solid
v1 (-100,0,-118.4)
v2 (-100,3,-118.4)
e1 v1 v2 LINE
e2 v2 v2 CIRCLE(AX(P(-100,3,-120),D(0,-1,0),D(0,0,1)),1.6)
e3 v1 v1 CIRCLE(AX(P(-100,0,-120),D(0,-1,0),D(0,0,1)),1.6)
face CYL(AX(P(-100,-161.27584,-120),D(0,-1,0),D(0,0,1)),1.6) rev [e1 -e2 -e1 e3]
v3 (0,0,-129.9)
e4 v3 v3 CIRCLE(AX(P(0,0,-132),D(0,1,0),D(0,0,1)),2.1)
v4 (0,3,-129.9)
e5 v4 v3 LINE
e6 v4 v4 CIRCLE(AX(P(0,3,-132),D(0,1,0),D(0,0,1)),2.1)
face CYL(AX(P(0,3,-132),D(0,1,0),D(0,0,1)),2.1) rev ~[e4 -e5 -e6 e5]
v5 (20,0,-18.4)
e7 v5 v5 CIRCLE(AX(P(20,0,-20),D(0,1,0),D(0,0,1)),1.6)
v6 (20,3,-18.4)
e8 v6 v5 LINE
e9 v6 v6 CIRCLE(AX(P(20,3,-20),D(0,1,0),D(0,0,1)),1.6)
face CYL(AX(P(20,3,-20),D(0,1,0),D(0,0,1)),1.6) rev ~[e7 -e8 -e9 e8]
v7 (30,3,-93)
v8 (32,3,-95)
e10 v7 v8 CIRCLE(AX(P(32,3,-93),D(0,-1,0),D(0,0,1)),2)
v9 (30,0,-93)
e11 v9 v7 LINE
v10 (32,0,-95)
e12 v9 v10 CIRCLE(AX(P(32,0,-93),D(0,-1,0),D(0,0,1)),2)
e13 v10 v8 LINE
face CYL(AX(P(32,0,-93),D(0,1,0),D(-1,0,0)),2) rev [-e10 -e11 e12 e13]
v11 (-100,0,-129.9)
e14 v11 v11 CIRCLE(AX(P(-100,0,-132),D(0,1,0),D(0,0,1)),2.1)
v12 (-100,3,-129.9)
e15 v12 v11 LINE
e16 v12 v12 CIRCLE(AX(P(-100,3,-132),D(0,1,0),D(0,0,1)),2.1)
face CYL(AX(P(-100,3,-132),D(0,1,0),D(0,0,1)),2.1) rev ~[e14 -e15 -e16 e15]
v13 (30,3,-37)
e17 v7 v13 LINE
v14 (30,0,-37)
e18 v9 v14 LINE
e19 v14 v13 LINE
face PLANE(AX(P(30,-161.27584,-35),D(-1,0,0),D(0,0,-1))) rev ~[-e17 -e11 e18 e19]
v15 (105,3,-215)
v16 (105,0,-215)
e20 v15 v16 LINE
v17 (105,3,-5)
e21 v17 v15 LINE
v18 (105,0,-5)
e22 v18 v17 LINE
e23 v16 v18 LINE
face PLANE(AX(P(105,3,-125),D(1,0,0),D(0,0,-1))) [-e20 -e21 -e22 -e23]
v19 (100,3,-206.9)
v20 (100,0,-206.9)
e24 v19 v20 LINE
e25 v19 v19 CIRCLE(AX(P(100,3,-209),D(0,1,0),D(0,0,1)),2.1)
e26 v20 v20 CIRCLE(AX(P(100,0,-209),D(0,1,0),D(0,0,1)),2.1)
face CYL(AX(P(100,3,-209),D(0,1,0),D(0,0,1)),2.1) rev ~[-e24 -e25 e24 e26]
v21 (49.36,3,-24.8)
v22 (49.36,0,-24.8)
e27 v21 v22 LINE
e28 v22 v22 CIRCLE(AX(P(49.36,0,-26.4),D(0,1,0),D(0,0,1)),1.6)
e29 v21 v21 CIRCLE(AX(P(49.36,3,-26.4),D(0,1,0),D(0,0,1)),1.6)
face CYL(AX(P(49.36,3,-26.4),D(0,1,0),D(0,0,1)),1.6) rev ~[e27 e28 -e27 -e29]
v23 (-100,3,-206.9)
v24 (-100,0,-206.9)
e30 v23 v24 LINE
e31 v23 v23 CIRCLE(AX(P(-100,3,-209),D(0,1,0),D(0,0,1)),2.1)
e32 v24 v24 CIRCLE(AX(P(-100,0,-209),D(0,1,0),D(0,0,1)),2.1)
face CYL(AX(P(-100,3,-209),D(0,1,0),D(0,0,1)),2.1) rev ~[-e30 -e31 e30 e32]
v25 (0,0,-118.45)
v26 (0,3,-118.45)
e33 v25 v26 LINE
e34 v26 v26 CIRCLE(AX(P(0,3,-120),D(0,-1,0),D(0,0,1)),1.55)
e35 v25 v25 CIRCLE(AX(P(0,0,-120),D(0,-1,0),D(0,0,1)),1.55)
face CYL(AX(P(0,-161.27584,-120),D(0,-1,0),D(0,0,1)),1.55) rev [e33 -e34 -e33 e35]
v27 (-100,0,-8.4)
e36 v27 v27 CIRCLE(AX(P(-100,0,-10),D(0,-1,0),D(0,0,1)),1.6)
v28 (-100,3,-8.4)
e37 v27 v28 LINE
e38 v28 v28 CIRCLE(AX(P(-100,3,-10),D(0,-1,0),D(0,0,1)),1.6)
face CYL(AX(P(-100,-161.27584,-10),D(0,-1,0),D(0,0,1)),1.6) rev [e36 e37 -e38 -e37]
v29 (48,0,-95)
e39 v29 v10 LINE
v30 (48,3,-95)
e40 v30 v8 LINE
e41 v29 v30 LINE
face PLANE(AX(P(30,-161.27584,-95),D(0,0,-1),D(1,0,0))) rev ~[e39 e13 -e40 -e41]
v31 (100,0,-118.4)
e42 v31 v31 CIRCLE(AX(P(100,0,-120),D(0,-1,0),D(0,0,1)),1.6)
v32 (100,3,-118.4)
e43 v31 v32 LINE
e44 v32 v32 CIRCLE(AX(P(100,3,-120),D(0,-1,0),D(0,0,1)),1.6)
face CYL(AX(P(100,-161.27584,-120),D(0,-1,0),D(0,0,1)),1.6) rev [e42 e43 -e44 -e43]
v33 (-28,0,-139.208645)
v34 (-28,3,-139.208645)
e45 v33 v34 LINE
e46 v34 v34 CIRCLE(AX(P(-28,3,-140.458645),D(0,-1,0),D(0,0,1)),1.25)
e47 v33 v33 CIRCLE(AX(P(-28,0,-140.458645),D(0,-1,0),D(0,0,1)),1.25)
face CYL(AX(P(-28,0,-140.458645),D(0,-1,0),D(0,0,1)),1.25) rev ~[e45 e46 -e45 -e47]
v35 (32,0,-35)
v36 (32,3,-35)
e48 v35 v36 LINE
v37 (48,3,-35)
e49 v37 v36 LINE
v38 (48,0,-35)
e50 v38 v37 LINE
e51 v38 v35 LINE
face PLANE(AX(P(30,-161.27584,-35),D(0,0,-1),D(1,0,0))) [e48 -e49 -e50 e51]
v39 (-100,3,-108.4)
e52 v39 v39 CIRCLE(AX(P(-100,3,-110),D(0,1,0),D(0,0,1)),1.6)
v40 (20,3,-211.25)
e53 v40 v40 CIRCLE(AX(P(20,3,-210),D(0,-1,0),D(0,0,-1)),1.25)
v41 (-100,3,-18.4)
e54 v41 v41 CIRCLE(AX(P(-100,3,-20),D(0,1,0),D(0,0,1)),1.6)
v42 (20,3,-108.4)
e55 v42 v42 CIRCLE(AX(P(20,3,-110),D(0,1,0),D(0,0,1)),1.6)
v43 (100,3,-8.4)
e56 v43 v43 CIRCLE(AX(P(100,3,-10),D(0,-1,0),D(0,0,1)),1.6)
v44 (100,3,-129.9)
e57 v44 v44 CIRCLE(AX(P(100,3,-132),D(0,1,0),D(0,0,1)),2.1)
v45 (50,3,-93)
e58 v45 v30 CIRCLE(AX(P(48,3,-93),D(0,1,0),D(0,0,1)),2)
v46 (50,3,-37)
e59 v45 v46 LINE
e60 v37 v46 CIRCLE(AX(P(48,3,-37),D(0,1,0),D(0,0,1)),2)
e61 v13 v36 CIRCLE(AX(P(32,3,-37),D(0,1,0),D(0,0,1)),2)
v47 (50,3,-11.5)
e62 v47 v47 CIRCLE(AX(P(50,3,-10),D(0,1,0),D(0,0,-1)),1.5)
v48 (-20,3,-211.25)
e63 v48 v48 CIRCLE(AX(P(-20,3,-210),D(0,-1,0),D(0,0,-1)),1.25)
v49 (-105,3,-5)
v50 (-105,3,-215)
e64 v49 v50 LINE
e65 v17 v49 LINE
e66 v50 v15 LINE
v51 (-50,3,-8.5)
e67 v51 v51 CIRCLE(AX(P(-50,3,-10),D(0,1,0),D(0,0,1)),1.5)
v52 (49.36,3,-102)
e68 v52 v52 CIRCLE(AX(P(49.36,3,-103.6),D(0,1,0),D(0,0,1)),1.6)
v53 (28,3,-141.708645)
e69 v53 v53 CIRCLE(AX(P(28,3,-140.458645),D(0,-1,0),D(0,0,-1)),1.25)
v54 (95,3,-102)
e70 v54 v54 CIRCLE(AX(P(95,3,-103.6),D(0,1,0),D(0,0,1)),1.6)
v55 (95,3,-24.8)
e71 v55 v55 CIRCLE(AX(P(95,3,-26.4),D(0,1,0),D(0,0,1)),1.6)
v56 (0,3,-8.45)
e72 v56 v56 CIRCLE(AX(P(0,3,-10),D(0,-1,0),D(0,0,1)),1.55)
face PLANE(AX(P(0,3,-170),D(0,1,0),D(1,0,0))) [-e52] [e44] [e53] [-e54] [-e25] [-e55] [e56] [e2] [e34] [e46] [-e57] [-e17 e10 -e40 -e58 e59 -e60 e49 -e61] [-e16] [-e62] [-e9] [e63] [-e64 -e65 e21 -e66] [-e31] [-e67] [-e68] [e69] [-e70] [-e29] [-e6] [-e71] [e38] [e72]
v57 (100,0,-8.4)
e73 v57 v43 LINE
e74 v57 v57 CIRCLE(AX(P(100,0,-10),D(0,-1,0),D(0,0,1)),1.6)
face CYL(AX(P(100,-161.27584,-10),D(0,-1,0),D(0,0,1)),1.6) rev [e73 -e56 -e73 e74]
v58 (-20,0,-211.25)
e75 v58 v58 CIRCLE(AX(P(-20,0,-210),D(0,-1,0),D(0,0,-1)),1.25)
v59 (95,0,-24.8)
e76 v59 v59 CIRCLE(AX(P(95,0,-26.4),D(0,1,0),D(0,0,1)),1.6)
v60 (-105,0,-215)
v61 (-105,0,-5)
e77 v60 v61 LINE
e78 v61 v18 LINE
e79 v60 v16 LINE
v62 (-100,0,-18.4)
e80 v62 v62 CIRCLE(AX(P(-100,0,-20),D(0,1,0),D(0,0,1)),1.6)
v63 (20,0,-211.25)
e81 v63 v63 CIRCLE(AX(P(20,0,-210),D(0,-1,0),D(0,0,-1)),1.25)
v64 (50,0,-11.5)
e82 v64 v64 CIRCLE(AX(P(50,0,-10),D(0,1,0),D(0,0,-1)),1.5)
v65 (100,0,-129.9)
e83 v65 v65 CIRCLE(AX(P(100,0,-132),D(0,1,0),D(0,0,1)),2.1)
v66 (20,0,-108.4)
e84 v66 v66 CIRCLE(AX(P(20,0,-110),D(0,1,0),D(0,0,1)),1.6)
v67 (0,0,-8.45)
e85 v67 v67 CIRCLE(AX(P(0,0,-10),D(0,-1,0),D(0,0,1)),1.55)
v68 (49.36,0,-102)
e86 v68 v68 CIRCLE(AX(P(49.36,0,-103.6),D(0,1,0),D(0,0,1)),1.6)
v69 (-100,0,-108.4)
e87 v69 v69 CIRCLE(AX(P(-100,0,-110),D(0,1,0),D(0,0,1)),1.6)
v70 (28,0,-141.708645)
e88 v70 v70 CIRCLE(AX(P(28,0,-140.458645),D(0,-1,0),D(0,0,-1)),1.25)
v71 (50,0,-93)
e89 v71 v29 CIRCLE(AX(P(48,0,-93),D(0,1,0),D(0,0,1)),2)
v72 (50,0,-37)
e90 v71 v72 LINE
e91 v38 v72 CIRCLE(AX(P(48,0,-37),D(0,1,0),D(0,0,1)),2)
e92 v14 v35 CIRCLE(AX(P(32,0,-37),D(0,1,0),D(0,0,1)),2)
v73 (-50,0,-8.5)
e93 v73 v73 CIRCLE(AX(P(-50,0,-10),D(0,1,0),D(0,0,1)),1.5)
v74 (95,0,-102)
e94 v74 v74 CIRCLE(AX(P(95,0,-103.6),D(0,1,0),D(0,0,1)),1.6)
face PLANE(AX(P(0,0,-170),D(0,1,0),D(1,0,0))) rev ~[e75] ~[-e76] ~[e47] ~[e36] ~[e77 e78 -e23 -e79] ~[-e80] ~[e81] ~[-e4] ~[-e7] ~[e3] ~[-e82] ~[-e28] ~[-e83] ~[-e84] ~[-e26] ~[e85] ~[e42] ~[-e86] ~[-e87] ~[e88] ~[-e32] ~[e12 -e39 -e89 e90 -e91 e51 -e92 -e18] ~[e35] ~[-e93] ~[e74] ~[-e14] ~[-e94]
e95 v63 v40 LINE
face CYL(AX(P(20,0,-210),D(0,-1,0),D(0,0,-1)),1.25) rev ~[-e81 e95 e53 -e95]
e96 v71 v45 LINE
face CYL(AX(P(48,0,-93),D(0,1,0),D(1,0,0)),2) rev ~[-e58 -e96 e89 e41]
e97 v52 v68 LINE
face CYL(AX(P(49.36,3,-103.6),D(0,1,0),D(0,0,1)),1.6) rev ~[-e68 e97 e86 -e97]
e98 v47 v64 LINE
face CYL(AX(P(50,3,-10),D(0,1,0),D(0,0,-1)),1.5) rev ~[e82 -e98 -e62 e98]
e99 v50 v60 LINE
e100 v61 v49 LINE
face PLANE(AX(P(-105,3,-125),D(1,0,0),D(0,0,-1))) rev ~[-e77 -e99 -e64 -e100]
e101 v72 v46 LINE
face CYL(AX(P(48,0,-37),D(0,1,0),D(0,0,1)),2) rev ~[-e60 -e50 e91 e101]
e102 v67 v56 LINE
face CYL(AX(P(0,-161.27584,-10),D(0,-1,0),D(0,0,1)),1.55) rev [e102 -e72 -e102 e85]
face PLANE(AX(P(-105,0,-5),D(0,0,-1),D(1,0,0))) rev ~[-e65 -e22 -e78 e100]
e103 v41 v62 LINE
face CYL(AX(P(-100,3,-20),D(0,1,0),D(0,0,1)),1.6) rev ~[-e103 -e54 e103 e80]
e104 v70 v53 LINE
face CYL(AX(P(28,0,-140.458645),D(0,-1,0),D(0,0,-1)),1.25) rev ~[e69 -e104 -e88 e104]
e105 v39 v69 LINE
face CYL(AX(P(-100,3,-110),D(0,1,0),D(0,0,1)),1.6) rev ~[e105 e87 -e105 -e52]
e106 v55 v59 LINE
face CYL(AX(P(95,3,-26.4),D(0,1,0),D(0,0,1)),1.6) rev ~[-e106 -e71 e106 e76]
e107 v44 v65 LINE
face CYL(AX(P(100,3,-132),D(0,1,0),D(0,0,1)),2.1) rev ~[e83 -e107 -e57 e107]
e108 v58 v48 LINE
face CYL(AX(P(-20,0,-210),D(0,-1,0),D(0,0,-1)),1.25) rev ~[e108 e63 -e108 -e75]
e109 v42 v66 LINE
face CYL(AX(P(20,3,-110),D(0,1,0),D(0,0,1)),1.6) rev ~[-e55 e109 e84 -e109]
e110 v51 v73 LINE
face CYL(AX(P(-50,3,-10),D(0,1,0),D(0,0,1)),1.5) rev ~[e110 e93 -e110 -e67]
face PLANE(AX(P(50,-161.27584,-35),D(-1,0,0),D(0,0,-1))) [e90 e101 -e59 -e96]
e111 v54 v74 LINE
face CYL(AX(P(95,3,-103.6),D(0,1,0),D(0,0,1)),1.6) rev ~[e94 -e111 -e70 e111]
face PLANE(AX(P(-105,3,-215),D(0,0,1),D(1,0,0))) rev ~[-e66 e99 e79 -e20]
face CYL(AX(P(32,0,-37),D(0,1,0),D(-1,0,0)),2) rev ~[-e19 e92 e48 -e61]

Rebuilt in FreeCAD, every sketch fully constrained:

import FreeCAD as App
import Part
import Sketcher


def edges_at(feature, points):
    """Names of the edges that pass closest to the given points."""
    edges = feature.Shape.Edges
    near = lambda p: min(range(len(edges)), key=lambda i: edges[i].distToShape(Part.Vertex(*p))[0])
    return sorted({f"Edge{near(p) + 1}" for p in points})


def add_polygon(sketch, points):
    """Adds a closed chain of lines whose ends are joined by coincident constraints."""
    first, n = sketch.GeometryCount, len(points)
    for a, b in zip(points, points[1:] + points[:1]):
        sketch.addGeometry(Part.LineSegment(App.Vector(*a, 0), App.Vector(*b, 0)), False)
    for i in range(n):
        sketch.addConstraint(Sketcher.Constraint("Coincident", first + i, 2, first + (i + 1) % n, 1))

doc = App.newDocument("Part")
body = doc.addObject("PartDesign::Body", "Body")

# Sketch on XZ plane
sketch1 = doc.addObject("Sketcher::SketchObject", "Sketch")
body.addObject(sketch1)
sketch1.AttachmentSupport = (doc.XZ_Plane, [""])
sketch1.MapMode = "FlatFace"
add_polygon(sketch1, [(-105, -125), (-105, 125), (105, 125), (105, -125)])  # lines 0-3
sketch1.addConstraint([
    Sketcher.Constraint("Vertical", 0),
    Sketcher.Constraint("Horizontal", 1),
    Sketcher.Constraint("Vertical", 2),
    Sketcher.Constraint("Horizontal", 3),
    Sketcher.Constraint("Symmetric", 0, 2, 2, 2, -1, 1),
    Sketcher.Constraint("DistanceX", 1, 1, 1, 2, 210.0),
    Sketcher.Constraint("DistanceY", 0, 1, 0, 2, 250.0),
])
pad1 = doc.addObject("PartDesign::Pad", "Pad")
body.addObject(pad1)
pad1.Profile = sketch1
pad1.Length = 3
pad1.Reversed = True

# Sketch on XZ plane
sketch2 = doc.addObject("Sketcher::SketchObject", "Sketch001")
body.addObject(sketch2)
sketch2.AttachmentSupport = (doc.XZ_Plane, [""])
sketch2.MapMode = "FlatFace"
add_polygon(sketch2, [(-105, -5), (-105, 125), (105, 125), (105, -5)])  # lines 0-3
sketch2.addConstraint([
    Sketcher.Constraint("Vertical", 0),
    Sketcher.Constraint("Horizontal", 1),
    Sketcher.Constraint("Vertical", 2),
    Sketcher.Constraint("Horizontal", 3),
    Sketcher.Constraint("DistanceX", 1, 1, 1, 2, 210.0),
    Sketcher.Constraint("DistanceY", 0, 1, 0, 2, 130.0),
    Sketcher.Constraint("DistanceX", 0, 2, -1, 1, 105.0),
    Sketcher.Constraint("DistanceY", -1, 1, 0, 2, 125.0),
])
pocket1 = doc.addObject("PartDesign::Pocket", "Pocket")
body.addObject(pocket1)
pocket1.Profile = sketch2
pocket1.Type = "ThroughAll"

# Sketch on XZ plane
sketch3 = doc.addObject("Sketcher::SketchObject", "Sketch002")
body.addObject(sketch3)
sketch3.AttachmentSupport = (doc.XZ_Plane, [""])
sketch3.MapMode = "FlatFace"
sketch3.AttachmentOffset = App.Placement(App.Vector(0, 0, -3), App.Rotation())
add_polygon(sketch3, [(30, -95), (30, -35), (50, -35), (50, -95)])  # lines 0-3
sketch3.addConstraint([
    Sketcher.Constraint("Vertical", 0),
    Sketcher.Constraint("Horizontal", 1),
    Sketcher.Constraint("Vertical", 2),
    Sketcher.Constraint("Horizontal", 3),
    Sketcher.Constraint("DistanceX", 1, 1, 1, 2, 20.0),
    Sketcher.Constraint("DistanceY", 0, 1, 0, 2, 60.0),
    Sketcher.Constraint("DistanceX", -1, 1, 0, 2, 30.0),
    Sketcher.Constraint("DistanceY", 0, 2, -1, 1, 35.0),
])
pocket2 = doc.addObject("PartDesign::Pocket", "Pocket001")
body.addObject(pocket2)
pocket2.Profile = sketch3
pocket2.Type = "ThroughAll"
pocket2.Midplane = True
doc.recompute()

fillet = doc.addObject("PartDesign::Fillet", "Fillet")
body.addObject(fillet)
fillet.Base = (pocket2, edges_at(pocket2, [
    (50, 1.5, -95),
    (50, 1.5, -35),
    (30, 1.5, -35),
    (30, 1.5, -95),
]))
fillet.Radius = 2

# Sketch on XZ plane
sketch4 = doc.addObject("Sketcher::SketchObject", "Sketch003")
body.addObject(sketch4)
sketch4.AttachmentSupport = (doc.XZ_Plane, [""])
sketch4.MapMode = "FlatFace"
sketch4.AttachmentOffset = App.Placement(App.Vector(0, 0, -3), App.Rotation())
sketch4.addGeometry([
    Part.Circle(App.Vector(100, -120, 0), App.Vector(0, 0, 1), 1.6),  # 0
    Part.Circle(App.Vector(0, -120, 0), App.Vector(0, 0, 1), 1.6),  # 1
    Part.Circle(App.Vector(-100, -120, 0), App.Vector(0, 0, 1), 1.6),  # 2
    Part.Circle(App.Vector(-100, -10, 0), App.Vector(0, 0, 1), 1.6),  # 3
    Part.Circle(App.Vector(0, -10, 0), App.Vector(0, 0, 1), 1.6),  # 4
    Part.Circle(App.Vector(100, -10, 0), App.Vector(0, 0, 1), 1.6),  # 5
], False)
sketch4.addConstraint([
    Sketcher.Constraint("Equal", 0, 2),
    Sketcher.Constraint("Equal", 2, 3),
    Sketcher.Constraint("Equal", 1, 4),
    Sketcher.Constraint("Equal", 3, 5),
    Sketcher.Constraint("Symmetric", 0, 3, 2, 3, -2),
    Sketcher.Constraint("Symmetric", 3, 3, 5, 3, -2),
    Sketcher.Constraint("PointOnObject", 1, 3, -2),
    Sketcher.Constraint("PointOnObject", 4, 3, -2),
    Sketcher.Constraint("Horizontal", 0, 3, 1, 3),
    Sketcher.Constraint("Horizontal", 3, 3, 4, 3),
    Sketcher.Constraint("Vertical", 2, 3, 3, 3),
    Sketcher.Constraint("Diameter", 0, 3.2),
    Sketcher.Constraint("Diameter", 1, 3.1),
    Sketcher.Constraint("DistanceX", -1, 1, 0, 3, 100.0),
    Sketcher.Constraint("DistanceY", 0, 3, -1, 1, 120.0),
    Sketcher.Constraint("DistanceY", 3, 3, -1, 1, 10.0),
])
pocket3 = doc.addObject("PartDesign::Pocket", "Pocket002")
body.addObject(pocket3)
pocket3.Profile = sketch4
pocket3.Type = "ThroughAll"
pocket3.Midplane = True

# Sketch on XZ plane
sketch5 = doc.addObject("Sketcher::SketchObject", "Sketch004")
body.addObject(sketch5)
sketch5.AttachmentSupport = (doc.XZ_Plane, [""])
sketch5.MapMode = "FlatFace"
sketch5.AttachmentOffset = App.Placement(App.Vector(0, 0, -3), App.Rotation())
sketch5.addGeometry([
    Part.Circle(App.Vector(20, -20, 0), App.Vector(0, 0, 1), 1.6),  # 0
    Part.Circle(App.Vector(-100, -20, 0), App.Vector(0, 0, 1), 1.6),  # 1
    Part.Circle(App.Vector(-100, -110, 0), App.Vector(0, 0, 1), 1.6),  # 2
    Part.Circle(App.Vector(20, -110, 0), App.Vector(0, 0, 1), 1.6),  # 3
    Part.Circle(App.Vector(-50, -10, 0), App.Vector(0, 0, 1), 1.5),  # 4
    Part.Circle(App.Vector(50, -10, 0), App.Vector(0, 0, 1), 1.5),  # 5
    Part.Circle(App.Vector(95, -26.4, 0), App.Vector(0, 0, 1), 1.6),  # 6
    Part.Circle(App.Vector(49.4, -26.4, 0), App.Vector(0, 0, 1), 1.6),  # 7
    Part.Circle(App.Vector(49.4, -103.6, 0), App.Vector(0, 0, 1), 1.6),  # 8
    Part.Circle(App.Vector(95, -103.6, 0), App.Vector(0, 0, 1), 1.6),  # 9
], False)
sketch5.addConstraint([
    Sketcher.Constraint("Equal", 0, 1),
    Sketcher.Constraint("Equal", 1, 2),
    Sketcher.Constraint("Equal", 2, 3),
    Sketcher.Constraint("Equal", 4, 5),
    Sketcher.Constraint("Equal", 3, 6),
    Sketcher.Constraint("Equal", 6, 7),
    Sketcher.Constraint("Equal", 7, 8),
    Sketcher.Constraint("Equal", 8, 9),
    Sketcher.Constraint("Symmetric", 4, 3, 5, 3, -2),
    Sketcher.Constraint("Horizontal", 0, 3, 1, 3),
    Sketcher.Constraint("Horizontal", 2, 3, 3, 3),
    Sketcher.Constraint("Horizontal", 6, 3, 7, 3),
    Sketcher.Constraint("Horizontal", 8, 3, 9, 3),
    Sketcher.Constraint("Vertical", 1, 3, 2, 3),
    Sketcher.Constraint("Vertical", 0, 3, 3, 3),
    Sketcher.Constraint("Vertical", 7, 3, 8, 3),
    Sketcher.Constraint("Vertical", 6, 3, 9, 3),
    Sketcher.Constraint("Diameter", 4, 3.0),
    Sketcher.Constraint("Diameter", 0, 3.2),
    Sketcher.Constraint("DistanceX", -1, 1, 0, 3, 20.0),
    Sketcher.Constraint("DistanceY", 0, 3, -1, 1, 20.0),
    Sketcher.Constraint("DistanceX", 1, 3, -1, 1, 100.0),
    Sketcher.Constraint("DistanceY", 2, 3, -1, 1, 110.0),
    Sketcher.Constraint("DistanceX", 4, 3, -1, 1, 50.0),
    Sketcher.Constraint("DistanceY", 4, 3, -1, 1, 10.0),
    Sketcher.Constraint("DistanceX", -1, 1, 6, 3, 95.0),
    Sketcher.Constraint("DistanceY", 6, 3, -1, 1, 26.4),
    Sketcher.Constraint("DistanceY", 8, 3, -1, 1, 103.6),
    Sketcher.Constraint("DistanceX", -1, 1, 7, 3, 49.36),
])
pocket4 = doc.addObject("PartDesign::Pocket", "Pocket003")
body.addObject(pocket4)
pocket4.Profile = sketch5
pocket4.Type = "ThroughAll"
pocket4.Reversed = True

# Sketch on XZ plane
sketch6 = doc.addObject("Sketcher::SketchObject", "Sketch005")
body.addObject(sketch6)
sketch6.AttachmentSupport = (doc.XZ_Plane, [""])
sketch6.MapMode = "FlatFace"
sketch6.AttachmentOffset = App.Placement(App.Vector(0, 0, -3), App.Rotation())
add_polygon(sketch6, [(-105, -215), (-105, -125), (105, -125), (105, -215)])  # lines 0-3
sketch6.addConstraint([
    Sketcher.Constraint("Vertical", 0),
    Sketcher.Constraint("Horizontal", 1),
    Sketcher.Constraint("Vertical", 2),
    Sketcher.Constraint("Horizontal", 3),
    Sketcher.Constraint("DistanceX", 1, 1, 1, 2, 210.0),
    Sketcher.Constraint("DistanceY", 0, 1, 0, 2, 90.0),
    Sketcher.Constraint("DistanceX", 0, 2, -1, 1, 105.0),
    Sketcher.Constraint("DistanceY", 0, 2, -1, 1, 125.0),
])
pad2 = doc.addObject("PartDesign::Pad", "Pad001")
body.addObject(pad2)
pad2.Profile = sketch6
pad2.Length = 3

# Sketch on XZ plane
sketch7 = doc.addObject("Sketcher::SketchObject", "Sketch006")
body.addObject(sketch7)
sketch7.AttachmentSupport = (doc.XZ_Plane, [""])
sketch7.MapMode = "FlatFace"
sketch7.AttachmentOffset = App.Placement(App.Vector(0, 0, -3), App.Rotation())
sketch7.addGeometry([
    Part.Circle(App.Vector(100, -132, 0), App.Vector(0, 0, 1), 2.1),
    Part.Circle(App.Vector(-100, -132, 0), App.Vector(0, 0, 1), 2.1),
    Part.Circle(App.Vector(0, -132, 0), App.Vector(0, 0, 1), 2.1),
], False)
sketch7.addConstraint([
    Sketcher.Constraint("Equal", 0, 1),
    Sketcher.Constraint("Equal", 1, 2),
    Sketcher.Constraint("Symmetric", 0, 3, 1, 3, -2),
    Sketcher.Constraint("PointOnObject", 2, 3, -2),
    Sketcher.Constraint("Horizontal", 1, 3, 2, 3),
    Sketcher.Constraint("Diameter", 0, 4.2),
    Sketcher.Constraint("DistanceX", -1, 1, 0, 3, 100.0),
    Sketcher.Constraint("DistanceY", 0, 3, -1, 1, 132.0),
])
pocket5 = doc.addObject("PartDesign::Pocket", "Pocket004")
body.addObject(pocket5)
pocket5.Profile = sketch7
pocket5.Length = 10
pocket5.Reversed = True

# Sketch on XZ plane
sketch8 = doc.addObject("Sketcher::SketchObject", "Sketch007")
body.addObject(sketch8)
sketch8.AttachmentSupport = (doc.XZ_Plane, [""])
sketch8.MapMode = "FlatFace"
sketch8.addGeometry([
    Part.Circle(App.Vector(-20, -210, 0), App.Vector(0, 0, 1), 1.2),
    Part.Circle(App.Vector(20, -210, 0), App.Vector(0, 0, 1), 1.2),
    Part.Circle(App.Vector(-28, -140.5, 0), App.Vector(0, 0, 1), 1.2),
    Part.Circle(App.Vector(28, -140.5, 0), App.Vector(0, 0, 1), 1.2),
], False)
sketch8.addConstraint([
    Sketcher.Constraint("Equal", 0, 1),
    Sketcher.Constraint("Equal", 1, 2),
    Sketcher.Constraint("Equal", 2, 3),
    Sketcher.Constraint("Symmetric", 0, 3, 1, 3, -2),
    Sketcher.Constraint("Symmetric", 2, 3, 3, 3, -2),
    Sketcher.Constraint("Diameter", 0, 2.5),
    Sketcher.Constraint("DistanceX", 0, 3, -1, 1, 20.0),
    Sketcher.Constraint("DistanceY", 0, 3, -1, 1, 210.0),
    Sketcher.Constraint("DistanceX", 2, 3, -1, 1, 28.0),
    Sketcher.Constraint("DistanceY", 2, 3, -1, 1, 140.458645),
])
pocket6 = doc.addObject("PartDesign::Pocket", "Pocket005")
body.addObject(pocket6)
pocket6.Profile = sketch8
pocket6.Type = "ThroughAll"

# Sketch on XZ plane
sketch9 = doc.addObject("Sketcher::SketchObject", "Sketch008")
body.addObject(sketch9)
sketch9.AttachmentSupport = (doc.XZ_Plane, [""])
sketch9.MapMode = "FlatFace"
sketch9.AttachmentOffset = App.Placement(App.Vector(0, 0, -3), App.Rotation())
sketch9.addGeometry([
    Part.Circle(App.Vector(100, -209, 0), App.Vector(0, 0, 1), 2.1),
    Part.Circle(App.Vector(-100, -209, 0), App.Vector(0, 0, 1), 2.1),
], False)
sketch9.addConstraint([
    Sketcher.Constraint("Equal", 0, 1),
    Sketcher.Constraint("Symmetric", 0, 3, 1, 3, -2),
    Sketcher.Constraint("Diameter", 0, 4.2),
    Sketcher.Constraint("DistanceX", -1, 1, 0, 3, 100.0),
    Sketcher.Constraint("DistanceY", 0, 3, -1, 1, 209.0),
])
pocket7 = doc.addObject("PartDesign::Pocket", "Pocket006")
body.addObject(pocket7)
pocket7.Profile = sketch9
pocket7.Length = 10
pocket7.Reversed = True

doc.recompute()
